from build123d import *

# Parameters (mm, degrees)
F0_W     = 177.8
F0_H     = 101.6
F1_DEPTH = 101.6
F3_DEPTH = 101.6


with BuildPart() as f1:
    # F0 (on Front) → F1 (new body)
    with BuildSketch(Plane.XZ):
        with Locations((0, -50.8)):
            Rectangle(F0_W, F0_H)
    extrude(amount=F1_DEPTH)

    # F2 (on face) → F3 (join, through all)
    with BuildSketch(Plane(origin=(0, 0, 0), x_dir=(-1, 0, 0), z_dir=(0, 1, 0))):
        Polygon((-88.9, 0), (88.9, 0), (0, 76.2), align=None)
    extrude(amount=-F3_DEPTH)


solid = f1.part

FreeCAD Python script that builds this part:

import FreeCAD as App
import Part
import Sketcher

V = App.Vector
Q = App.Units.Quantity

doc = App.newDocument("Part")
body = doc.addObject("PartDesign::Body", "Body")

# Sketch on XZ plane
sketch1 = body.newObject("Sketcher::SketchObject", "Sketch")
sketch1.AttachmentSupport = (doc.getObject("XZ_Plane"), [""])
sketch1.MapMode = "FlatFace"
sketch1.addGeometry([
    Part.LineSegment(V(-88.9, 0, 0), V(-88.9, -101.6, 0)),
    Part.LineSegment(V(-88.9, -101.6, 0), V(88.9, -101.6, 0)),
    Part.LineSegment(V(88.9, -101.6, 0), V(88.9, 0, 0)),
    Part.LineSegment(V(88.9, 0, 0), V(-88.9, 0, 0)),
], False)
sketch1.addConstraint([
    Sketcher.Constraint("Coincident", 0, 2, 1, 1),
    Sketcher.Constraint("Coincident", 1, 2, 2, 1),
    Sketcher.Constraint("Coincident", 2, 2, 3, 1),
    Sketcher.Constraint("Coincident", 3, 2, 0, 1),
    Sketcher.Constraint("Vertical", 0),
    Sketcher.Constraint("Horizontal", 1),
    Sketcher.Constraint("Vertical", 2),
    Sketcher.Constraint("Horizontal", 3),
    Sketcher.Constraint("Symmetric", 2, 2, 3, 2, -1, 1),
    Sketcher.Constraint("DistanceX", 1, 1, 1, 2, Q("7 in")),
    Sketcher.Constraint("DistanceY", 0, 2, 0, 1, Q("4 in")),
])
pad1 = body.newObject("PartDesign::Pad", "Pad")
pad1.Profile = sketch1
pad1.Length = Q("4 in")

# Sketch on XZ plane
sketch2 = body.newObject("Sketcher::SketchObject", "Sketch001")
sketch2.AttachmentSupport = (doc.getObject("XZ_Plane"), [""])
sketch2.MapMode = "FlatFace"
sketch2.addGeometry([
    Part.LineSegment(V(88.9, 0, 0), V(-88.9, 0, 0)),
    Part.LineSegment(V(-88.9, 0, 0), V(0, 76.2, 0)),
    Part.LineSegment(V(0, 76.2, 0), V(88.9, 0, 0)),
], False)
sketch2.addConstraint([
    Sketcher.Constraint("Coincident", 0, 2, 1, 1),
    Sketcher.Constraint("Coincident", 1, 2, 2, 1),
    Sketcher.Constraint("Coincident", 2, 2, 0, 1),
    Sketcher.Constraint("Horizontal", 0),
    Sketcher.Constraint("Symmetric", 0, 2, 2, 2, -1, 1),
    Sketcher.Constraint("PointOnObject", 1, 2, -2),
    Sketcher.Constraint("DistanceX", 0, 2, 0, 1, Q("7 in")),
    Sketcher.Constraint("DistanceY", -1, 1, 1, 2, Q("3 in")),
])
pad2 = body.newObject("PartDesign::Pad", "Pad001")
pad2.Profile = sketch2
pad2.Length = Q("4 in")

doc.recompute()
